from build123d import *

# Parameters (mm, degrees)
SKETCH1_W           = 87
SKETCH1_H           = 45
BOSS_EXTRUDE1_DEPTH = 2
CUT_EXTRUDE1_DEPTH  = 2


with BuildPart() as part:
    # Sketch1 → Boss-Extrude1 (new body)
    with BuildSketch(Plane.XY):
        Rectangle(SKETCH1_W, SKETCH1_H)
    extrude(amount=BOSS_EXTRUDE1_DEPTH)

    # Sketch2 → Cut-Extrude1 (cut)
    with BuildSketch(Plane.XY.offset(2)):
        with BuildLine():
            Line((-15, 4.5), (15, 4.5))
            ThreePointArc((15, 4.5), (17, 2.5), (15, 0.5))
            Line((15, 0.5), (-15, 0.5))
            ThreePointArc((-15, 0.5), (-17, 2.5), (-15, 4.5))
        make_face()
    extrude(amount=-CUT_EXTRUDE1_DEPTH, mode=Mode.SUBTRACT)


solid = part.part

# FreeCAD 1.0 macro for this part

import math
import FreeCAD as App
import Part
import Sketcher
from FreeCAD import Vector
Q = App.Units.Quantity

doc = App.newDocument("Part")
params = doc.addObject("Spreadsheet::Sheet", "Params")
for row, (alias, value) in enumerate([
    ("sketch1_width", "87 mm"),
    ("sketch1_height", "45 mm"),
    ("pad1_length", "2 mm"),
    ("sketch2_radius", "2 mm"),
    ("sketch2_width", "30 mm"),
    ("pocket1_length", "2 mm"),
], start=1):
    params.set(f"A{row}", alias)
    params.set(f"B{row}", "=" + value)
    params.setAlias(f"B{row}", alias)

body = doc.addObject("PartDesign::Body", "Body")

# Sketch on XY plane
sketch1 = doc.addObject("Sketcher::SketchObject", "Sketch")
body.addObject(sketch1)
sketch1.AttachmentSupport = (doc.XY_Plane, [""])
sketch1.MapMode = "FlatFace"
sketch1.addGeometry(Part.LineSegment(Vector(-44, 22, 0), Vector(-44, -22, 0)), False)
sketch1.addGeometry(Part.LineSegment(Vector(-44, -22, 0), Vector(44, -22, 0)), False)
sketch1.addGeometry(Part.LineSegment(Vector(44, -22, 0), Vector(44, 22, 0)), False)
sketch1.addGeometry(Part.LineSegment(Vector(44, 22, 0), Vector(-44, 22, 0)), False)
sketch1.addConstraint(Sketcher.Constraint("Coincident", 0, 2, 1, 1))
sketch1.addConstraint(Sketcher.Constraint("Coincident", 1, 2, 2, 1))
sketch1.addConstraint(Sketcher.Constraint("Coincident", 2, 2, 3, 1))
sketch1.addConstraint(Sketcher.Constraint("Coincident", 3, 2, 0, 1))
sketch1.addConstraint(Sketcher.Constraint("Vertical", 0))
sketch1.addConstraint(Sketcher.Constraint("Horizontal", 1))
sketch1.addConstraint(Sketcher.Constraint("Vertical", 2))
sketch1.addConstraint(Sketcher.Constraint("Horizontal", 3))
sketch1.addConstraint(Sketcher.Constraint("Symmetric", 0, 2, 2, 2, -1, 1))
sketch1.addConstraint(Sketcher.Constraint("DistanceX", 1, 1, 1, 2, Q("87 mm")))
sketch1.addConstraint(Sketcher.Constraint("DistanceY", 0, 2, 0, 1, Q("45 mm")))
sketch1.setExpression("Constraints[9]", "Params.sketch1_width")
sketch1.setExpression("Constraints[10]", "Params.sketch1_height")
pad1 = doc.addObject("PartDesign::Pad", "Pad")
body.addObject(pad1)
pad1.Profile = sketch1
pad1.setExpression("Length", "Params.pad1_length")

# Sketch on XY plane
sketch2 = doc.addObject("Sketcher::SketchObject", "Sketch001")
body.addObject(sketch2)
sketch2.AttachmentSupport = (doc.XY_Plane, [""])
sketch2.MapMode = "FlatFace"
sketch2.AttachmentOffset = App.Placement(Vector(0, 0, 2), App.Rotation())
sketch2.addGeometry(Part.LineSegment(Vector(15, 4.5, 0), Vector(-15, 4.5, 0)), False)
sketch2.addGeometry(Part.ArcOfCircle(Part.Circle(Vector(-15, 2.5, 0), Vector(0, 0, 1), 2), math.radians(90), math.radians(270)), False)
sketch2.addGeometry(Part.LineSegment(Vector(-15, 0.5, 0), Vector(15, 0.5, 0)), False)
sketch2.addGeometry(Part.ArcOfCircle(Part.Circle(Vector(15, 2.5, 0), Vector(0, 0, 1), 2), math.radians(-90), math.radians(90)), False)
sketch2.addConstraint(Sketcher.Constraint("Tangent", 0, 2, 1, 1))
sketch2.addConstraint(Sketcher.Constraint("Tangent", 1, 2, 2, 1))
sketch2.addConstraint(Sketcher.Constraint("Tangent", 2, 2, 3, 1))
sketch2.addConstraint(Sketcher.Constraint("Tangent", 3, 2, 0, 1))
sketch2.addConstraint(Sketcher.Constraint("Horizontal", 0))
sketch2.addConstraint(Sketcher.Constraint("Horizontal", 2))
sketch2.addConstraint(Sketcher.Constraint("Radius", 1, Q("2 mm")))
sketch2.addConstraint(Sketcher.Constraint("DistanceX", 0, 2, 0, 1, Q("30 mm")))
sketch2.addConstraint(Sketcher.Constraint("DistanceX", 1, 3, -1, 1, Q("15 mm")))
sketch2.addConstraint(Sketcher.Constraint("DistanceY", -1, 1, 1, 3, Q("2.5 mm")))
sketch2.setExpression("Constraints[6]", "Params.sketch2_radius")
sketch2.setExpression("Constraints[7]", "Params.sketch2_width")
pocket1 = doc.addObject("PartDesign::Pocket", "Pocket")
body.addObject(pocket1)
pocket1.Profile = sketch2
pocket1.setExpression("Length", "Params.pocket1_length")

doc.recompute()
